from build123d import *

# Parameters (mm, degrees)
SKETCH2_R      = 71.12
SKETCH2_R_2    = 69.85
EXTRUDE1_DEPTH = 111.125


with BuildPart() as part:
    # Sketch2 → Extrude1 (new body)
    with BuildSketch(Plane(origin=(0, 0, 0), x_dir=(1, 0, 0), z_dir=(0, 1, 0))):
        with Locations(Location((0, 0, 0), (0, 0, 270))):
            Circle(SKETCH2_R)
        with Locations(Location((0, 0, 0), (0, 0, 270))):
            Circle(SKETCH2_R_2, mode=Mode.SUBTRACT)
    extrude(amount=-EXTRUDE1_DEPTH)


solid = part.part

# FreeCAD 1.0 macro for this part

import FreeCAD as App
import Part
import Sketcher
Q = App.Units.Quantity

doc = App.newDocument("Part")
body = doc.addObject("PartDesign::Body", "Body")

# Sketch on XZ plane
sketch1 = doc.addObject("Sketcher::SketchObject", "Sketch")
body.addObject(sketch1)
sketch1.AttachmentSupport = (doc.XZ_Plane, [""])
sketch1.MapMode = "FlatFace"
sketch1.addGeometry([
    Part.Circle(App.Vector(0, 0, 0), App.Vector(0, 0, 1), 71),
    Part.Circle(App.Vector(0, 0, 0), App.Vector(0, 0, 1), 70),
], False)
sketch1.addConstraint([
    Sketcher.Constraint("Coincident", 0, 3, -1, 1),
    Sketcher.Constraint("Coincident", 1, 3, -1, 1),
    Sketcher.Constraint("Diameter", 0, Q("5.6 in")),
    Sketcher.Constraint("Diameter", 1, Q("5.5 in")),
])
pad1 = doc.addObject("PartDesign::Pad", "Pad")
body.addObject(pad1)
pad1.Profile = sketch1
pad1.Length = Q("4.375 in")

doc.recompute()
